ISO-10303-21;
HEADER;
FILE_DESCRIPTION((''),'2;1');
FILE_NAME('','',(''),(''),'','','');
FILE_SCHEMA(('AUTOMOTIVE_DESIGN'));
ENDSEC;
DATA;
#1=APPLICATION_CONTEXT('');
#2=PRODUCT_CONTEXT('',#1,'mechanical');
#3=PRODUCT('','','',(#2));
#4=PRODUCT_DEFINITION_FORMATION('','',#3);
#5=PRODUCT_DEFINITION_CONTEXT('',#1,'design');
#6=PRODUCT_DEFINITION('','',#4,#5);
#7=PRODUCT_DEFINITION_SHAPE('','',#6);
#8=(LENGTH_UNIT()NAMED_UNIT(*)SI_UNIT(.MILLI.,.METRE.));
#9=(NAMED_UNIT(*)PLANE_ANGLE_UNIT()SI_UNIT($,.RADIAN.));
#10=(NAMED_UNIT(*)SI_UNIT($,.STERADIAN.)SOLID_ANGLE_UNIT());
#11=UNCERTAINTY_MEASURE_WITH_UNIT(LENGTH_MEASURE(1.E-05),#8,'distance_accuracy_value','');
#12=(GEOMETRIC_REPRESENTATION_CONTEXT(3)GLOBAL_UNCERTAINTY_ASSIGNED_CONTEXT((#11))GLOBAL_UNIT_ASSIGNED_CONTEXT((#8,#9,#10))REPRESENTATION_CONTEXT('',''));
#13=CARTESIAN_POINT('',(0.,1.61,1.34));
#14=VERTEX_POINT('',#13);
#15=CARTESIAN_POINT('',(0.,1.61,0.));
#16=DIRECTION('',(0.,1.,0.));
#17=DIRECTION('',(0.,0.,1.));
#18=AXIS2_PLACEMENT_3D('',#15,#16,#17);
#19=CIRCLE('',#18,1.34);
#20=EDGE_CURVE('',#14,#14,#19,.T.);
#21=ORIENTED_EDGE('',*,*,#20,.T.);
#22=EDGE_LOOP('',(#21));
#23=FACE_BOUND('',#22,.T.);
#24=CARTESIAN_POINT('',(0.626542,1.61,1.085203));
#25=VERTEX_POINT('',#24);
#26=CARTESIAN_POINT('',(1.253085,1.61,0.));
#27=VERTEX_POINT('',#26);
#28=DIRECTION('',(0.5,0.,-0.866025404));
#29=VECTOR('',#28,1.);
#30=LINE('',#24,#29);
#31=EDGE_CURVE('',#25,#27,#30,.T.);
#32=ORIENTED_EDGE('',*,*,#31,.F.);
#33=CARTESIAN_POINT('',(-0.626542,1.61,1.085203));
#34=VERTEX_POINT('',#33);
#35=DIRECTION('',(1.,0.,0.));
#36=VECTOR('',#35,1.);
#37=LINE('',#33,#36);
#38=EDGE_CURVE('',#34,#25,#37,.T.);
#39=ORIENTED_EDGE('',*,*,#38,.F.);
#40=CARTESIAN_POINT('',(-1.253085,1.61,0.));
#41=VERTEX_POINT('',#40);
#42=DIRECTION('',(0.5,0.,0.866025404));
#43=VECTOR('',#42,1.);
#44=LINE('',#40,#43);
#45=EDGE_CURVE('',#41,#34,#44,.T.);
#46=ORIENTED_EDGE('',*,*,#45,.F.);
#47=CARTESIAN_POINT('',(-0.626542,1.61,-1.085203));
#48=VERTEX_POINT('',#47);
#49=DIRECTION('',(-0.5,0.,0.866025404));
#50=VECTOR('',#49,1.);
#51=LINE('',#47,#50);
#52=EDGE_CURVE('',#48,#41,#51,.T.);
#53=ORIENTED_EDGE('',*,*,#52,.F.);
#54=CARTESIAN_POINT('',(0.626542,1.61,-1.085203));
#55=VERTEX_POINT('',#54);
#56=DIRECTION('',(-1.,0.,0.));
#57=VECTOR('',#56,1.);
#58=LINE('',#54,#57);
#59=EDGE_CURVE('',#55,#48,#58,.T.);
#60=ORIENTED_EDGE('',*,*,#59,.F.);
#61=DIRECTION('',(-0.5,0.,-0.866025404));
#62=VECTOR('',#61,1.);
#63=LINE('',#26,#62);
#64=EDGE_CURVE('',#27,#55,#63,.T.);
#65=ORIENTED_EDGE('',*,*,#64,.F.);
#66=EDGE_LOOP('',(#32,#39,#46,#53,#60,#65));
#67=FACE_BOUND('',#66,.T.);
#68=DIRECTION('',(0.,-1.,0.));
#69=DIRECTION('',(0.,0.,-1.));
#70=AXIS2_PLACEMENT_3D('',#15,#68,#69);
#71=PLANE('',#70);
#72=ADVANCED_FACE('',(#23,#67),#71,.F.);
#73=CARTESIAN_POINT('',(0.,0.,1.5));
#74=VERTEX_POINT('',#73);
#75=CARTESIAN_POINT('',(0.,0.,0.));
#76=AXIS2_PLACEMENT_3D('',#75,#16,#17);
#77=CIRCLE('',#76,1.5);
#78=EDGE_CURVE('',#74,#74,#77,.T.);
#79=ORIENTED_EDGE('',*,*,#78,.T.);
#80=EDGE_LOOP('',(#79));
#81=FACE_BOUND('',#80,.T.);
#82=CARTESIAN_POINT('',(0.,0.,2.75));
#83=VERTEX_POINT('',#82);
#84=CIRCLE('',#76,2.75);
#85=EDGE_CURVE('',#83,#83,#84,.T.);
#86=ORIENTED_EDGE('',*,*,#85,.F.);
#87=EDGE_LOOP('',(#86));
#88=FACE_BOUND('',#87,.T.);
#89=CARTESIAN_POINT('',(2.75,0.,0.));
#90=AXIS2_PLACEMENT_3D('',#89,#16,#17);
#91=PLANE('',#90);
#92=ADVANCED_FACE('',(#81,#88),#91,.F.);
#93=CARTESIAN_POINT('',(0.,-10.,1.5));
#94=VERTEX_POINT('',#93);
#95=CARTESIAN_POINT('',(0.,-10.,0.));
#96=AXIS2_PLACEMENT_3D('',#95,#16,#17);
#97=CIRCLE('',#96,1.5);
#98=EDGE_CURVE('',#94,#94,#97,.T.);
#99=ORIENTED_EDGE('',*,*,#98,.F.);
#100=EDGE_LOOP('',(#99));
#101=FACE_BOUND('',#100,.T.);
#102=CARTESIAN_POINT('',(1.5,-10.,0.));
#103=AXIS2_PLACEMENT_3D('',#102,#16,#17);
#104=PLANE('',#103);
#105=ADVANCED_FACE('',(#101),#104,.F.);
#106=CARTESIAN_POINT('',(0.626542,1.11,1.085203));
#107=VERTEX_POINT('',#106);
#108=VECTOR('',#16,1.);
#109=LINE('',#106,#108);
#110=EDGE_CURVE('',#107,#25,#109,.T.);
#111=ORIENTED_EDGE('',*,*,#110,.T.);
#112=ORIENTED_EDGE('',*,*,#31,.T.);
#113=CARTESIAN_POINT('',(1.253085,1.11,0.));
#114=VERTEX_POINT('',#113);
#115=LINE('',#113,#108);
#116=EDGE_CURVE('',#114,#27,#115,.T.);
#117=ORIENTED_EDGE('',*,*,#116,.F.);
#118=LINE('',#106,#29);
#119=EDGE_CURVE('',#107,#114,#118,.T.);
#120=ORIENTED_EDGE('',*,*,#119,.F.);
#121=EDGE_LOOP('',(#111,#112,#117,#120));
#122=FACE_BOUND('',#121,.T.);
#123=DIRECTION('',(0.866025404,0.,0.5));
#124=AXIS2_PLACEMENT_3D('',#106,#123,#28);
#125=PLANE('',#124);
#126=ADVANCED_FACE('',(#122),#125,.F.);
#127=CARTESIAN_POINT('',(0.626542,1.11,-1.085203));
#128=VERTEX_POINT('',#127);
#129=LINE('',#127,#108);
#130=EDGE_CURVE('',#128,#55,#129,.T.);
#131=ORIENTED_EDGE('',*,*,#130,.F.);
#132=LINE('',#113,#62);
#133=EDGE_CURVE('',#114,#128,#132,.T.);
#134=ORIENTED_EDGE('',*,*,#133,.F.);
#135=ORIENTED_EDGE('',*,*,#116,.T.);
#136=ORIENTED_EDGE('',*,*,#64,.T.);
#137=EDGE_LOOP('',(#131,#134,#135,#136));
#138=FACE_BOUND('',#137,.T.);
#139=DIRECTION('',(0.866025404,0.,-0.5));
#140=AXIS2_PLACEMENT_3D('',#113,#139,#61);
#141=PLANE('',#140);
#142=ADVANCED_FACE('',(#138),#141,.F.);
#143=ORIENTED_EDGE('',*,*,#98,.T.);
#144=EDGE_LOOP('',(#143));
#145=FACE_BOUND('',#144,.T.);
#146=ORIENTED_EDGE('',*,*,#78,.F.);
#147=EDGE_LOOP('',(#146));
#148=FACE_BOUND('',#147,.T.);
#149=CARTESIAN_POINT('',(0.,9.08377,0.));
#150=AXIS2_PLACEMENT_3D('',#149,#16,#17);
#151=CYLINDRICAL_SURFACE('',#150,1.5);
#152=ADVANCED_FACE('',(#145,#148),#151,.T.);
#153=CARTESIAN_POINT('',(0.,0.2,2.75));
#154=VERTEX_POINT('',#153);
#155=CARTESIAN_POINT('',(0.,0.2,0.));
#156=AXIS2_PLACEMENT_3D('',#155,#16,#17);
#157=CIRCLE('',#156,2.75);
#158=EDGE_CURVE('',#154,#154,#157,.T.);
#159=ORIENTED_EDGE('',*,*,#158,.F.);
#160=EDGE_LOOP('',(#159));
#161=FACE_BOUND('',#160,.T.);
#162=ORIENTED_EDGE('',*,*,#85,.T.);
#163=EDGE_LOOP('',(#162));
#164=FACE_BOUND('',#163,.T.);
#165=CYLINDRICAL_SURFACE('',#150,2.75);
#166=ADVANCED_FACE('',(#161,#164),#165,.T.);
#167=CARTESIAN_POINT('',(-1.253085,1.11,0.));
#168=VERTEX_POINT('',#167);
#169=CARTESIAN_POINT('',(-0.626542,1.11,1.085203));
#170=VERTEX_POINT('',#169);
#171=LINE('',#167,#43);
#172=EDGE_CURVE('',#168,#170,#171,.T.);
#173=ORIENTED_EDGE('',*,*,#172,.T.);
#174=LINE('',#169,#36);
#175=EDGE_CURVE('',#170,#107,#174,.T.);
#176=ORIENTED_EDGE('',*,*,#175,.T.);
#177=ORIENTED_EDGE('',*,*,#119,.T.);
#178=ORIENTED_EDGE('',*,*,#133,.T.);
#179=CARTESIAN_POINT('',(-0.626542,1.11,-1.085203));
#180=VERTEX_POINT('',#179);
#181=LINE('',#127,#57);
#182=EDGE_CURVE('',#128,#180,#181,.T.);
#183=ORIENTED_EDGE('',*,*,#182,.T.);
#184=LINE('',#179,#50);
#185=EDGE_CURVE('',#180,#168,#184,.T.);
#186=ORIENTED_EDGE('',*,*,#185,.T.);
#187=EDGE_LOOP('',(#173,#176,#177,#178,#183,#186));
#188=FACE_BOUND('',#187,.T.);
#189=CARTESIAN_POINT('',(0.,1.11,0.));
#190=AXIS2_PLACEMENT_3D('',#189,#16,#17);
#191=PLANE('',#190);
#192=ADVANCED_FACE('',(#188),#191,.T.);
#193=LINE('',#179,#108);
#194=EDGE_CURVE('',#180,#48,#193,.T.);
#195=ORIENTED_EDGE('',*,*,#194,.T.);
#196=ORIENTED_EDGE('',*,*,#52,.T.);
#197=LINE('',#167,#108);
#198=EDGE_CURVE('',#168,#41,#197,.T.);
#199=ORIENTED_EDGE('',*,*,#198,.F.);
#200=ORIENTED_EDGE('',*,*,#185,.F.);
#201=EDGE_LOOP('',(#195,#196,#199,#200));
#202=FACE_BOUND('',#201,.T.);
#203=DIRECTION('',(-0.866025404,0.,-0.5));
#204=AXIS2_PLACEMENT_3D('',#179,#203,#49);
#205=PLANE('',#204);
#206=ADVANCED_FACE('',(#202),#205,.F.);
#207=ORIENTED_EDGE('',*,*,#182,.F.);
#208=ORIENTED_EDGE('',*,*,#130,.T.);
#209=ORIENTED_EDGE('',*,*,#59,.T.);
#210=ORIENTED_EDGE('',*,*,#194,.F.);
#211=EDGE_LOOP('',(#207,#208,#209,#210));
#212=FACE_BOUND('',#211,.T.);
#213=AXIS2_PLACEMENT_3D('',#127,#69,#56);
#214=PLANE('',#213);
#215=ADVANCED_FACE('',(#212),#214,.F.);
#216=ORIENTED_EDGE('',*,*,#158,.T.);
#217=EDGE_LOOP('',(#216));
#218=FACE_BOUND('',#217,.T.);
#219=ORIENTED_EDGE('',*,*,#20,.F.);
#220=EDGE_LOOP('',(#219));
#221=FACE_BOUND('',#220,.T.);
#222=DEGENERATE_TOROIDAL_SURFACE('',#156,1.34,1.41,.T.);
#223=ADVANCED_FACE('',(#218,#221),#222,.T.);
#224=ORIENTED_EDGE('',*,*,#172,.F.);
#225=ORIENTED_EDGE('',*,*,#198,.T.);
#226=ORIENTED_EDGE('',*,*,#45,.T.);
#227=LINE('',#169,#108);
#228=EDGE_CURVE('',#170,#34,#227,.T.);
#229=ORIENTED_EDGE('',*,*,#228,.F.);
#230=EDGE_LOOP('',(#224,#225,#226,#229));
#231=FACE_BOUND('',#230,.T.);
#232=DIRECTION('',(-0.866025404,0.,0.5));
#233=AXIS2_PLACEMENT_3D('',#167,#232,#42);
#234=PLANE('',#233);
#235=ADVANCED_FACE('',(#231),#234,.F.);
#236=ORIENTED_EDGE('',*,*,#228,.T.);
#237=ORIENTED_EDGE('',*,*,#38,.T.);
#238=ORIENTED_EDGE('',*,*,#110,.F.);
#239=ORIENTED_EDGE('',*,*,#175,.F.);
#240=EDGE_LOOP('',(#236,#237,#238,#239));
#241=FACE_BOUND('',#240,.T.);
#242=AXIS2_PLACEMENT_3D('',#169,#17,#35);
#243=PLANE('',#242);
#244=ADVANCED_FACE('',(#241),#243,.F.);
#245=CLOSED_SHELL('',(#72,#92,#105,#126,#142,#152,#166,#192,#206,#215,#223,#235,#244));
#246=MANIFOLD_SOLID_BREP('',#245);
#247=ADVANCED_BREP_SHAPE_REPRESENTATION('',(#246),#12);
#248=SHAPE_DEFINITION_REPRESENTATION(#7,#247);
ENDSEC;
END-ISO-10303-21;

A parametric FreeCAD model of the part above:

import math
import FreeCAD as App
import Part
import Sketcher
Q = App.Units.Quantity


def add_polygon(sketch, points):
    """Adds a closed chain of lines whose ends are joined by coincident constraints."""
    first, n = sketch.GeometryCount, len(points)
    for a, b in zip(points, points[1:] + points[:1]):
        sketch.addGeometry(Part.LineSegment(App.Vector(*a, 0), App.Vector(*b, 0)), False)
    for i in range(n):
        sketch.addConstraint(Sketcher.Constraint("Coincident", first + i, 2, first + (i + 1) % n, 1))

doc = App.newDocument("Part")
body = doc.addObject("PartDesign::Body", "Body")

# Sketch on XY plane
sketch1 = doc.addObject("Sketcher::SketchObject", "Sketch")
body.addObject(sketch1)
sketch1.AttachmentSupport = (doc.XY_Plane, [""])
sketch1.MapMode = "FlatFace"
sketch1.addGeometry(Part.LineSegment(App.Vector(1.34, 1.61, 0), App.Vector(0, 1.61, 0)), False)
sketch1.addGeometry(Part.LineSegment(App.Vector(0, 1.61, 0), App.Vector(0, -10, 0)), False)
sketch1.addGeometry(Part.LineSegment(App.Vector(0, -10, 0), App.Vector(1.5, -10, 0)), False)
sketch1.addGeometry(Part.LineSegment(App.Vector(1.5, -10, 0), App.Vector(1.5, 0, 0)), False)
sketch1.addGeometry(Part.LineSegment(App.Vector(1.5, 0, 0), App.Vector(2.75, 0, 0)), False)
sketch1.addGeometry(Part.LineSegment(App.Vector(2.75, 0, 0), App.Vector(2.75, 0.2, 0)), False)
sketch1.addGeometry(Part.ArcOfCircle(Part.Circle(App.Vector(1.34, 0.2, 0), App.Vector(0, 0, 1), 1.41), math.radians(0), math.radians(90)), False)
sketch1.addConstraint(Sketcher.Constraint("Coincident", 0, 2, 1, 1))
sketch1.addConstraint(Sketcher.Constraint("Coincident", 1, 2, 2, 1))
sketch1.addConstraint(Sketcher.Constraint("Coincident", 2, 2, 3, 1))
sketch1.addConstraint(Sketcher.Constraint("Coincident", 3, 2, 4, 1))
sketch1.addConstraint(Sketcher.Constraint("Coincident", 4, 2, 5, 1))
sketch1.addConstraint(Sketcher.Constraint("Tangent", 5, 2, 6, 1))
sketch1.addConstraint(Sketcher.Constraint("Tangent", 6, 2, 0, 1))
sketch1.addConstraint(Sketcher.Constraint("Horizontal", 0))
sketch1.addConstraint(Sketcher.Constraint("Vertical", 1))
sketch1.addConstraint(Sketcher.Constraint("Horizontal", 2))
sketch1.addConstraint(Sketcher.Constraint("Vertical", 3))
sketch1.addConstraint(Sketcher.Constraint("Horizontal", 4))
sketch1.addConstraint(Sketcher.Constraint("Vertical", 5))
sketch1.addConstraint(Sketcher.Constraint("PointOnObject", 0, 2, -2))
sketch1.addConstraint(Sketcher.Constraint("PointOnObject", 3, 2, -1))
sketch1.addConstraint(Sketcher.Constraint("DistanceY", 3, 1, 3, 2, Q("10 mm")))
sketch1.addConstraint(Sketcher.Constraint("Radius", 6, Q("1.41 mm")))
sketch1.addConstraint(Sketcher.Constraint("DistanceX", 2, 1, 2, 2, Q("1.5 mm")))
sketch1.addConstraint(Sketcher.Constraint("DistanceY", 5, 1, 5, 2, Q("0.2 mm")))
sketch1.addConstraint(Sketcher.Constraint("DistanceX", 0, 2, 0, 1, Q("1.34 mm")))
revolution = doc.addObject("PartDesign::Revolution", "Revolution")
body.addObject(revolution)
revolution.Profile = sketch1
revolution.ReferenceAxis = (sketch1, ["V_Axis"])
revolution.Angle = 360

# Sketch on XZ plane
sketch2 = doc.addObject("Sketcher::SketchObject", "Sketch001")
body.addObject(sketch2)
sketch2.AttachmentSupport = (doc.XZ_Plane, [""])
sketch2.MapMode = "FlatFace"
sketch2.AttachmentOffset = App.Placement(App.Vector(0, 0, -1.61), App.Rotation())
add_polygon(sketch2, [(0.6, -1.1), (-0.6, -1.1), (-1.3, 0), (-0.6, 1.1), (0.6, 1.1), (1.3, 0)])  # lines 0-5
sketch2.addConstraint(Sketcher.Constraint("Horizontal", 0))
sketch2.addConstraint(Sketcher.Constraint("Horizontal", 3))
sketch2.addConstraint(Sketcher.Constraint("Symmetric", 0, 2, 3, 2, -1, 1))
sketch2.addConstraint(Sketcher.Constraint("Symmetric", 1, 2, 4, 2, -1, 1))
sketch2.addConstraint(Sketcher.Constraint("PointOnObject", 1, 2, -1))
sketch2.addConstraint(Sketcher.Constraint("Parallel", 2, 5))
sketch2.addConstraint(Sketcher.Constraint("Vertical", 0, 2, 2, 2))
sketch2.addConstraint(Sketcher.Constraint("Angle", 1, Q("120 deg")))
sketch2.addConstraint(Sketcher.Constraint("DistanceX", 0, 2, 0, 1, Q("1.253085 mm")))
sketch2.addConstraint(Sketcher.Constraint("DistanceX", 1, 2, 4, 2, Q("2.50617 mm")))
pocket1 = doc.addObject("PartDesign::Pocket", "Pocket")
body.addObject(pocket1)
pocket1.Profile = sketch2
pocket1.Length = 0.5
pocket1.Reversed = True

doc.recompute()
